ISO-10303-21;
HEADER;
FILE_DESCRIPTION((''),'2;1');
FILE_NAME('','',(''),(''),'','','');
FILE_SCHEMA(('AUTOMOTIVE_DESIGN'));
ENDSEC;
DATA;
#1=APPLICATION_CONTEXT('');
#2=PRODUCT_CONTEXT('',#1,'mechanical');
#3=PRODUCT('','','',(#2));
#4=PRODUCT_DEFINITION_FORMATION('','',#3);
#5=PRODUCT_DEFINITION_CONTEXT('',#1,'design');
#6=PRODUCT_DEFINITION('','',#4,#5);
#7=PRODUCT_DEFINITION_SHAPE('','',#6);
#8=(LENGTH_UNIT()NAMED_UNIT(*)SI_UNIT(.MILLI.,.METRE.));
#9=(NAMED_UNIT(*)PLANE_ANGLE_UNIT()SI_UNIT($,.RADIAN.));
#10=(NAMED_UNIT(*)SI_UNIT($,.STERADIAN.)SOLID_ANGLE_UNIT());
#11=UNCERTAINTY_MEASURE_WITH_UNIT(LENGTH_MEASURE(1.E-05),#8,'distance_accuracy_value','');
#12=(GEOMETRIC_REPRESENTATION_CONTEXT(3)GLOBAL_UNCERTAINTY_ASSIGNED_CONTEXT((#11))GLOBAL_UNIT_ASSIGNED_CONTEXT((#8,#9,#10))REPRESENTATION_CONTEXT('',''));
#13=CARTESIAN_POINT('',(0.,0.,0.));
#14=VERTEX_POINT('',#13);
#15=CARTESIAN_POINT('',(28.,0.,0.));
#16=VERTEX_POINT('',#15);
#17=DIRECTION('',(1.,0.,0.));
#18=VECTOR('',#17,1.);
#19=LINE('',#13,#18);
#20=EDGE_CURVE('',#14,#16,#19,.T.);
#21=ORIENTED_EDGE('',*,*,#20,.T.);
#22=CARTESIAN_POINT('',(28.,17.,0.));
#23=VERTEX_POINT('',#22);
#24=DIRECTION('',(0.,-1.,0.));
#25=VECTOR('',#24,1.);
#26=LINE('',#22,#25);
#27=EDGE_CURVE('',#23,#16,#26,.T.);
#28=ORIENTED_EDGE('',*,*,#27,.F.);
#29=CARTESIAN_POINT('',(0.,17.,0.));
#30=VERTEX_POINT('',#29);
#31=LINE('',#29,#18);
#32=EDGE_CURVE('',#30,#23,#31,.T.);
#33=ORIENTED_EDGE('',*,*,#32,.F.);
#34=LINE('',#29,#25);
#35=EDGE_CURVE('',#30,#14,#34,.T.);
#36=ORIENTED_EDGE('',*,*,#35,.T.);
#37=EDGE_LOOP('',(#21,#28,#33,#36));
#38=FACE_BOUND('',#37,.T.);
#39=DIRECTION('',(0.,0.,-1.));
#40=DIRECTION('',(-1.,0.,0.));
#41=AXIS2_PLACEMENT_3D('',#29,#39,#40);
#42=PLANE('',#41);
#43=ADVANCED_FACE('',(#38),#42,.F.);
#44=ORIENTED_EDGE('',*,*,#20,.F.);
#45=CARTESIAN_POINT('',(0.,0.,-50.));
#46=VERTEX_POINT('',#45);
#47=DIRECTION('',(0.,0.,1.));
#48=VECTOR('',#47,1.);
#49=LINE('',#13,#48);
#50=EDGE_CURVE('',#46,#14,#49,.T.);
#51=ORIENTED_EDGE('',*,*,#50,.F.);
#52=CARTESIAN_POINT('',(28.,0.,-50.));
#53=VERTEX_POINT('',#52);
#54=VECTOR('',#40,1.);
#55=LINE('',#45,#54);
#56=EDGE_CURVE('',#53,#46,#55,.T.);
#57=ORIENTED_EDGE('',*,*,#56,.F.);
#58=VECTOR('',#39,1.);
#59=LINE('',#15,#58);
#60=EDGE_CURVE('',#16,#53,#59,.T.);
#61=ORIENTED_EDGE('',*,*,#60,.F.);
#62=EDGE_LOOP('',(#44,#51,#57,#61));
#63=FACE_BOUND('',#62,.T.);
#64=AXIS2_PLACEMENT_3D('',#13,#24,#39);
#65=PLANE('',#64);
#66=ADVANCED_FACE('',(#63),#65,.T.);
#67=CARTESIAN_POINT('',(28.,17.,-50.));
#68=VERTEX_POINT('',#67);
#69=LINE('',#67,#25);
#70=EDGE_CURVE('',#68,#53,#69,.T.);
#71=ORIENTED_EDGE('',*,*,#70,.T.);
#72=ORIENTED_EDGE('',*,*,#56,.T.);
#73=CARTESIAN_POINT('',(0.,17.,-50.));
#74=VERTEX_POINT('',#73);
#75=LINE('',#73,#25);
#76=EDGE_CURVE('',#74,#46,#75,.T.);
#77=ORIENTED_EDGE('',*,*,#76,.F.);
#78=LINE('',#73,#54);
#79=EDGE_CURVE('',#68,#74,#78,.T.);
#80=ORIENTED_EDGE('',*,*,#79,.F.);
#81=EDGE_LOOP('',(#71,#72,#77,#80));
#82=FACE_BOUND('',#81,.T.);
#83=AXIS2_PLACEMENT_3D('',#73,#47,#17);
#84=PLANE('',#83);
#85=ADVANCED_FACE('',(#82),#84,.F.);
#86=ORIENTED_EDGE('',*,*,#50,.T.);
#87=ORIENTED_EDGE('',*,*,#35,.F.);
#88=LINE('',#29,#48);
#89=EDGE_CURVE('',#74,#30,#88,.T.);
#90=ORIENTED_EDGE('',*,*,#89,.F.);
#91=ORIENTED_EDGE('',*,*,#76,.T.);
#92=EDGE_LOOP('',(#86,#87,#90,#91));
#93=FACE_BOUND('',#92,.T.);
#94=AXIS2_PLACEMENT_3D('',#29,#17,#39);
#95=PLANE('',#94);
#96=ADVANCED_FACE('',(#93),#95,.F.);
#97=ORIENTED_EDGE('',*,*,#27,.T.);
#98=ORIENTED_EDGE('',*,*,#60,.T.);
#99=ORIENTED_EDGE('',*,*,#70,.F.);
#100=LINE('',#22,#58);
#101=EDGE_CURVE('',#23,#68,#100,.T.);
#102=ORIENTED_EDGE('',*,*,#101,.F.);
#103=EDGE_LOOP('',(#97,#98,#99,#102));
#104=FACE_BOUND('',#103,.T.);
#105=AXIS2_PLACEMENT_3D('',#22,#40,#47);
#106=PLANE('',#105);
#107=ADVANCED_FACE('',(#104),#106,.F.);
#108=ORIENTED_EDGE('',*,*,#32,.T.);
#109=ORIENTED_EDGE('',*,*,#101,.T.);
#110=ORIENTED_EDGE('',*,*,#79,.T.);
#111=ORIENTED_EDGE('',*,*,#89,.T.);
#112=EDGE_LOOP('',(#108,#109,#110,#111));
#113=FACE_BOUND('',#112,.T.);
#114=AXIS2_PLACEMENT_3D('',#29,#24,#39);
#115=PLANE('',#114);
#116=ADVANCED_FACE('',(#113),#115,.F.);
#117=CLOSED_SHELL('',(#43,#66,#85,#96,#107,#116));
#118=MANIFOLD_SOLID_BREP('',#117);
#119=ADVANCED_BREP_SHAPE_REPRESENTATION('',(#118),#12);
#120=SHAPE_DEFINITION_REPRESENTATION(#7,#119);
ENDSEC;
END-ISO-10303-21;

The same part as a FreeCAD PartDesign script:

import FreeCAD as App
import Part
import Sketcher


def add_polygon(sketch, points):
    """Adds a closed chain of lines whose ends are joined by coincident constraints."""
    first, n = sketch.GeometryCount, len(points)
    for a, b in zip(points, points[1:] + points[:1]):
        sketch.addGeometry(Part.LineSegment(App.Vector(*a, 0), App.Vector(*b, 0)), False)
    for i in range(n):
        sketch.addConstraint(Sketcher.Constraint("Coincident", first + i, 2, first + (i + 1) % n, 1))

doc = App.newDocument("Part")
body = doc.addObject("PartDesign::Body", "Body")

sketch1 = body.newObject("Sketcher::SketchObject", "Sketch")
sketch1.AttachmentSupport = (doc.getObject("XZ_Plane"), [""])
sketch1.MapMode = "FlatFace"
add_polygon(sketch1, [(0, -50), (0, 0), (28, 0), (28, -50)])
sketch1.addConstraint(Sketcher.Constraint("Vertical", 0))
sketch1.addConstraint(Sketcher.Constraint("Horizontal", 1))
sketch1.addConstraint(Sketcher.Constraint("Vertical", 2))
sketch1.addConstraint(Sketcher.Constraint("Horizontal", 3))
sketch1.addConstraint(Sketcher.Constraint("Coincident", 0, 2, -1, 1))
sketch1.addConstraint(Sketcher.Constraint("DistanceX", 1, 1, 1, 2, 28.0))
sketch1.addConstraint(Sketcher.Constraint("DistanceY", 0, 1, 0, 2, 50.0))
pad1 = body.newObject("PartDesign::Pad", "Pad")
pad1.Profile = sketch1
pad1.Length = 17
pad1.Reversed = True

doc.recompute()
